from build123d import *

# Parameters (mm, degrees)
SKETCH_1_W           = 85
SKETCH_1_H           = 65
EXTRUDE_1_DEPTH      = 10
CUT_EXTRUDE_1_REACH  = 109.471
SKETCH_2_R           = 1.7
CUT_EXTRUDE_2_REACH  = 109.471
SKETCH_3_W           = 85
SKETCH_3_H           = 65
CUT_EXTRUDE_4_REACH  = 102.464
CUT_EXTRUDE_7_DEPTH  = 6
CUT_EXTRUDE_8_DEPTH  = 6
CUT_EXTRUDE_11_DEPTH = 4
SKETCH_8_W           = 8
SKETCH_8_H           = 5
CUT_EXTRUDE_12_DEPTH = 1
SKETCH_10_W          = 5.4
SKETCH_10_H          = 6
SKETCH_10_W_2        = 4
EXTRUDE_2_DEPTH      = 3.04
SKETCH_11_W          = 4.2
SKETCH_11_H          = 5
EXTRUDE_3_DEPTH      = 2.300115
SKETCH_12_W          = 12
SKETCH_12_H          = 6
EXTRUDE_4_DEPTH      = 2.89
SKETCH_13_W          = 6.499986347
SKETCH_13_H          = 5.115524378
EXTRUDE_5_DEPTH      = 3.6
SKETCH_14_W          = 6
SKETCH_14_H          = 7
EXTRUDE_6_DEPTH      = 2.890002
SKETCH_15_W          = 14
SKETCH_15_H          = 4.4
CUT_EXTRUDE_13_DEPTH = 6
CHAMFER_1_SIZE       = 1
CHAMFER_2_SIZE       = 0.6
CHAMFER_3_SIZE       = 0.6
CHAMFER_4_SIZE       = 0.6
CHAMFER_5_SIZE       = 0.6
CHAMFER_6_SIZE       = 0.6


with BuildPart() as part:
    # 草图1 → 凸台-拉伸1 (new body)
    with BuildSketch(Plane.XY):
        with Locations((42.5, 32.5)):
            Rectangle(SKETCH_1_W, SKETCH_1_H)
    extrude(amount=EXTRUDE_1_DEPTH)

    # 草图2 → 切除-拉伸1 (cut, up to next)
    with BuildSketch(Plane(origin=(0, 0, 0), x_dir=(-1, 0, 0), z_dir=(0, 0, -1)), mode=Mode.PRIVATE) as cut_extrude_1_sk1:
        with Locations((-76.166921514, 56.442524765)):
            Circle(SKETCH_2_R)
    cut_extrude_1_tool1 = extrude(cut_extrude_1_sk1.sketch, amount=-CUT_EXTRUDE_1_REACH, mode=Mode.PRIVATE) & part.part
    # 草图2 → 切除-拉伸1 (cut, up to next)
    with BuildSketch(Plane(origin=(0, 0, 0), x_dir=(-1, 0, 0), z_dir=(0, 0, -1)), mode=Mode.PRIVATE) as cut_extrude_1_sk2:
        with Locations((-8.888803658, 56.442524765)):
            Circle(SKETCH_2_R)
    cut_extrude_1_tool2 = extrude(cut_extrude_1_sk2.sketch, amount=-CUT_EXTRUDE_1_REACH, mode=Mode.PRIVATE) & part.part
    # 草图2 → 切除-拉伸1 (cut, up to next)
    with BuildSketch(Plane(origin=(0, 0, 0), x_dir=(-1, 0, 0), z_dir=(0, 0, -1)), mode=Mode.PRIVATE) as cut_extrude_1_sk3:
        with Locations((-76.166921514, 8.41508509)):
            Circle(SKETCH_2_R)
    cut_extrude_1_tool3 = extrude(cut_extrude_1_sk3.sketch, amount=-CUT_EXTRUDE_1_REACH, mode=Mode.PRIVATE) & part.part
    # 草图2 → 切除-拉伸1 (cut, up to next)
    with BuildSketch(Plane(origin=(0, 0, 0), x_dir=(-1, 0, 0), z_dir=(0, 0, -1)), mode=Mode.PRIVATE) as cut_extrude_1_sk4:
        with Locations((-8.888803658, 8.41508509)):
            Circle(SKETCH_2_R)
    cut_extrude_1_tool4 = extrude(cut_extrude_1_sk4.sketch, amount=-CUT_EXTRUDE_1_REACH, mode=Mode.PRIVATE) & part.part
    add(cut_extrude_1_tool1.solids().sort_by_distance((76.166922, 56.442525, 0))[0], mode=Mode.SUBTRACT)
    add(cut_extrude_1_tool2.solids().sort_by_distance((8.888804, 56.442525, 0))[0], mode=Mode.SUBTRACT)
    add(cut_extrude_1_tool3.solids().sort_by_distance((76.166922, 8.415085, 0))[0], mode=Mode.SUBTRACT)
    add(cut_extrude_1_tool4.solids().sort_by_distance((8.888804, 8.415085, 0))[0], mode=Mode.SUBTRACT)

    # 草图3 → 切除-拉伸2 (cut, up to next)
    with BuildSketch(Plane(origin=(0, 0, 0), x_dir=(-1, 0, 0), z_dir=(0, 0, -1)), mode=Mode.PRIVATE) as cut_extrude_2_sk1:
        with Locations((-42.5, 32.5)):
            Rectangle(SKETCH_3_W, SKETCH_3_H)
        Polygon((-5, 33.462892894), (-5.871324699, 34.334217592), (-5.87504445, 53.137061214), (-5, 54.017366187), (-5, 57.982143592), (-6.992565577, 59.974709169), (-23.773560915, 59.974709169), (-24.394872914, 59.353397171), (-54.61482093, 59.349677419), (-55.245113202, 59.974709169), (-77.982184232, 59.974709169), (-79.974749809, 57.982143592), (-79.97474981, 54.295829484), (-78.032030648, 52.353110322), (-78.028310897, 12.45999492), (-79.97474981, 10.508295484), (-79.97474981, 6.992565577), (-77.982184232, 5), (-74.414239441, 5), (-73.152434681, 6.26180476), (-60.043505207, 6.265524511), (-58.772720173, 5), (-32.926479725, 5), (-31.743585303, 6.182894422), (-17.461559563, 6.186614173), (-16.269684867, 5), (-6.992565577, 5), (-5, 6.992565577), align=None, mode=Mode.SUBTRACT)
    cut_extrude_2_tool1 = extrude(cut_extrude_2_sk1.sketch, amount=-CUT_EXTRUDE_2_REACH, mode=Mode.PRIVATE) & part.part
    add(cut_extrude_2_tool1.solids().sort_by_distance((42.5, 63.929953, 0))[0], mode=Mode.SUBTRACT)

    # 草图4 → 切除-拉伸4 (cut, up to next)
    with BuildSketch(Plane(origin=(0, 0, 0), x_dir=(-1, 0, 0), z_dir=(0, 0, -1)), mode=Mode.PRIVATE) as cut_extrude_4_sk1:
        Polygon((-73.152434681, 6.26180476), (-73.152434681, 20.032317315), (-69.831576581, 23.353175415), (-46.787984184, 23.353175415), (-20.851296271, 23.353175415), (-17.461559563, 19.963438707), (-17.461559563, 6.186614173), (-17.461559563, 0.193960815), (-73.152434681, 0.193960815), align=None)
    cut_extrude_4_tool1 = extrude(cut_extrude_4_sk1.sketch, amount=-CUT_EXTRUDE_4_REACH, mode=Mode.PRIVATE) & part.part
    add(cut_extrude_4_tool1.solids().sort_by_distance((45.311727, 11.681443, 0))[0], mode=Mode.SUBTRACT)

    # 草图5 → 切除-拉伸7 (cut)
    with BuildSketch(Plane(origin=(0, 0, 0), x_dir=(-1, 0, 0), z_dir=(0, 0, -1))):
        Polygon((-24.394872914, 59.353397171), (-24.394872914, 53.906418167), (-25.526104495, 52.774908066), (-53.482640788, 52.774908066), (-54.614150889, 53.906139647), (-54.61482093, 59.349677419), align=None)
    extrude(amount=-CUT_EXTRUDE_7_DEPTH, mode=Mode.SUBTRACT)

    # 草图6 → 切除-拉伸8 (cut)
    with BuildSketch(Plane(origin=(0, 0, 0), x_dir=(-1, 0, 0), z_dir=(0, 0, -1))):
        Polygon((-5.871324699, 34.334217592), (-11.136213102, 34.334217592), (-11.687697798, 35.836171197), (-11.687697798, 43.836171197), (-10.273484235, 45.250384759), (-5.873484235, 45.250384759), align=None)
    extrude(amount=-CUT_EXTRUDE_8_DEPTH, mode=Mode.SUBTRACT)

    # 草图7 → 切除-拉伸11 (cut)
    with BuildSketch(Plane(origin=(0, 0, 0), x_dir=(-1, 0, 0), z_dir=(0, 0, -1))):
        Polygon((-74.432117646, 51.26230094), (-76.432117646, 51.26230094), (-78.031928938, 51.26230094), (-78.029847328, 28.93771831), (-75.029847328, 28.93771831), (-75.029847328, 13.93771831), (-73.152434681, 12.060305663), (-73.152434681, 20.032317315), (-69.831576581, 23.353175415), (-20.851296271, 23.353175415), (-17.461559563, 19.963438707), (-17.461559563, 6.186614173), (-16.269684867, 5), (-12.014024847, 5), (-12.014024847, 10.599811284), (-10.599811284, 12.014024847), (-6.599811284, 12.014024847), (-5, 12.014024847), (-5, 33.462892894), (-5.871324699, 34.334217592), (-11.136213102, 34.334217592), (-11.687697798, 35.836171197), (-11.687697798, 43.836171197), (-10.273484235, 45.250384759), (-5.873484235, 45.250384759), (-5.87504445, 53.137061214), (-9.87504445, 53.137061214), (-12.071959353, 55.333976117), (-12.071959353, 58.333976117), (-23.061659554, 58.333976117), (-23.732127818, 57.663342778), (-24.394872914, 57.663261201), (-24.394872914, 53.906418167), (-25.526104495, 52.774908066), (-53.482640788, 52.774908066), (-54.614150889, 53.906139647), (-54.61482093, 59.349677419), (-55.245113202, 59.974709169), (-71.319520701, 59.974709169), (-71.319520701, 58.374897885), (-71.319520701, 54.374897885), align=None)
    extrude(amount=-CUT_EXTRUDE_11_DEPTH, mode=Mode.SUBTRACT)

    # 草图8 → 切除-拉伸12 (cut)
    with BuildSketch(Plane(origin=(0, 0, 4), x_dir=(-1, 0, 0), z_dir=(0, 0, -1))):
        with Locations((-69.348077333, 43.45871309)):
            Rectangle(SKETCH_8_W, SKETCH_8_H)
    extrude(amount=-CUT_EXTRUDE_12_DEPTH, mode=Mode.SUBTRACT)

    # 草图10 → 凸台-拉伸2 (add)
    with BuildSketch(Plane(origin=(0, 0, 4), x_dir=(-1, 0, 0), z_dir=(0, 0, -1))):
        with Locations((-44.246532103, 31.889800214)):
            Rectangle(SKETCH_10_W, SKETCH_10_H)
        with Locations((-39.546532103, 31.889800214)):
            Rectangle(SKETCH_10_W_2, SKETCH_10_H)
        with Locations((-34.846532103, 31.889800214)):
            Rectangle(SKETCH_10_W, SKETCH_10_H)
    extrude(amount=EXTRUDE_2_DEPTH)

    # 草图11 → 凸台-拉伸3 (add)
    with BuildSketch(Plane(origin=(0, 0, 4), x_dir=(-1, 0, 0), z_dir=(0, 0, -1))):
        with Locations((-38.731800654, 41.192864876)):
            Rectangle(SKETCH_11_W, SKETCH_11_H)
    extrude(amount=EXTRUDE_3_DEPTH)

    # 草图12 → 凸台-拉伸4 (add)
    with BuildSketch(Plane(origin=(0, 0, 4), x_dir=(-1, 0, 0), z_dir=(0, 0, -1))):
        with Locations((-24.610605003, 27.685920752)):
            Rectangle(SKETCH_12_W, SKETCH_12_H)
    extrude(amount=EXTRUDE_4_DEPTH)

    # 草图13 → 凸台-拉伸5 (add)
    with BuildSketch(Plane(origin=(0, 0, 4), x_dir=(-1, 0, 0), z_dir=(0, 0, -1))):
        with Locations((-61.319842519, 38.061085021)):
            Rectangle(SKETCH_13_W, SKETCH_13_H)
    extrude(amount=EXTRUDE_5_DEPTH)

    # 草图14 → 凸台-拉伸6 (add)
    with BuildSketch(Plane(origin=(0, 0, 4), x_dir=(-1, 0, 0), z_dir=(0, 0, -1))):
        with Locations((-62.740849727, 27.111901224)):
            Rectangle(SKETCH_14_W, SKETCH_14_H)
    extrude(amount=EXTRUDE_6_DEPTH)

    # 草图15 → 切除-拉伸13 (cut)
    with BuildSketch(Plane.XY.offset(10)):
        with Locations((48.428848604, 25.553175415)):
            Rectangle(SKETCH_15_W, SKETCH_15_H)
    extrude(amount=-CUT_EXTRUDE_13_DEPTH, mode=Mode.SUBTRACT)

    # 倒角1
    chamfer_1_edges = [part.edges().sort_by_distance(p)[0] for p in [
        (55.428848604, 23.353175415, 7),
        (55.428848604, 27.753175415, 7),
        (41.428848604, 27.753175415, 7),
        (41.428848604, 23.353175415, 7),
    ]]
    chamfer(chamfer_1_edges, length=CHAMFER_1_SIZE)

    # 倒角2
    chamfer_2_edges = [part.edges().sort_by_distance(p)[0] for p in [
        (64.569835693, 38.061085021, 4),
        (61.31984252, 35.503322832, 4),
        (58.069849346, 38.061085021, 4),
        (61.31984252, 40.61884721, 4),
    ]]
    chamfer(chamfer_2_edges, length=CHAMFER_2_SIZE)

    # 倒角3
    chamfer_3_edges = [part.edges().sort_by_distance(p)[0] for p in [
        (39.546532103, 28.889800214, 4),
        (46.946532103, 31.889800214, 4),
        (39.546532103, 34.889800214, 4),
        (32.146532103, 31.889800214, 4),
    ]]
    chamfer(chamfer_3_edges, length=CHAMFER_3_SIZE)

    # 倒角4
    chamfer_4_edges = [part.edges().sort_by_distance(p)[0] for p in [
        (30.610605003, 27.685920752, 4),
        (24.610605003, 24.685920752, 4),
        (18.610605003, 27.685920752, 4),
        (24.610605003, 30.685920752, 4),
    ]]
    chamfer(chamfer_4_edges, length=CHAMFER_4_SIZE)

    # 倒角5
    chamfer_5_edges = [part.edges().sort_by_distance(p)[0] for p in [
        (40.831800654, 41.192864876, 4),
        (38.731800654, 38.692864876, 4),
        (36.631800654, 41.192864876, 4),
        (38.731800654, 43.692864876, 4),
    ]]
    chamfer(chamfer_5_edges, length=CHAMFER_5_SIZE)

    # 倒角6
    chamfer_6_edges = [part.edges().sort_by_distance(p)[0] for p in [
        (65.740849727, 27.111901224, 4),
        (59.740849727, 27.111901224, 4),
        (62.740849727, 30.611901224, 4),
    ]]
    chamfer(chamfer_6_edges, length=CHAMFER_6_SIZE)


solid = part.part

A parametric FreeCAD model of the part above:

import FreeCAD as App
import Part
import Sketcher
Q = App.Units.Quantity


def edges_at(feature, points):
    """Names of the edges that pass closest to the given points."""
    edges = feature.Shape.Edges
    near = lambda p: min(range(len(edges)), key=lambda i: edges[i].distToShape(Part.Vertex(*p))[0])
    return sorted({f"Edge{near(p) + 1}" for p in points})


def add_polygon(sketch, points):
    """Adds a closed chain of lines whose ends are joined by coincident constraints."""
    first, n = sketch.GeometryCount, len(points)
    for a, b in zip(points, points[1:] + points[:1]):
        sketch.addGeometry(Part.LineSegment(App.Vector(*a, 0), App.Vector(*b, 0)), False)
    for i in range(n):
        sketch.addConstraint(Sketcher.Constraint("Coincident", first + i, 2, first + (i + 1) % n, 1))

doc = App.newDocument("Part")
body = doc.addObject("PartDesign::Body", "Body")

# Sketch on XY plane
sketch1 = body.newObject("Sketcher::SketchObject", "Sketch")
sketch1.AttachmentSupport = (doc.getObject("XY_Plane"), [""])
sketch1.MapMode = "FlatFace"
add_polygon(sketch1, [(0, 65), (0, 0), (85, 0), (85, 65)])  # lines 0-3
sketch1.addConstraint(Sketcher.Constraint("Vertical", 0))
sketch1.addConstraint(Sketcher.Constraint("Horizontal", 1))
sketch1.addConstraint(Sketcher.Constraint("Vertical", 2))
sketch1.addConstraint(Sketcher.Constraint("Horizontal", 3))
sketch1.addConstraint(Sketcher.Constraint("Coincident", 0, 2, -1, 1))
sketch1.addConstraint(Sketcher.Constraint("DistanceX", 1, 1, 1, 2, Q("85 mm")))
sketch1.addConstraint(Sketcher.Constraint("DistanceY", 0, 2, 0, 1, Q("65 mm")))
pad1 = body.newObject("PartDesign::Pad", "Pad")
pad1.Profile = sketch1
pad1.Length = 10

# Sketch on XY plane
sketch2 = body.newObject("Sketcher::SketchObject", "Sketch001")
sketch2.AttachmentSupport = (doc.getObject("XY_Plane"), [""])
sketch2.MapMode = "FlatFace"
sketch2.addGeometry(Part.Circle(App.Vector(76.166922, 56.442525, 0), App.Vector(0, 0, 1), 1.7), False)
sketch2.addConstraint(Sketcher.Constraint("Diameter", 0, Q("3.4 mm")))
sketch2.addConstraint(Sketcher.Constraint("DistanceX", -1, 1, 0, 3, Q("76.166922 mm")))
sketch2.addConstraint(Sketcher.Constraint("DistanceY", -1, 1, 0, 3, Q("56.442525 mm")))
pocket1 = body.newObject("PartDesign::Pocket", "Pocket")
pocket1.Profile = sketch2
pocket1.Type = "UpToFirst"
pocket1.Reversed = True

# Sketch on XY plane
sketch3 = body.newObject("Sketcher::SketchObject", "Sketch002")
sketch3.AttachmentSupport = (doc.getObject("XY_Plane"), [""])
sketch3.MapMode = "FlatFace"
sketch3.addGeometry(Part.Circle(App.Vector(8.888804, 56.442525, 0), App.Vector(0, 0, 1), 1.7), False)
sketch3.addConstraint(Sketcher.Constraint("Diameter", 0, Q("3.4 mm")))
sketch3.addConstraint(Sketcher.Constraint("DistanceX", -1, 1, 0, 3, Q("8.888804 mm")))
sketch3.addConstraint(Sketcher.Constraint("DistanceY", -1, 1, 0, 3, Q("56.442525 mm")))
pocket2 = body.newObject("PartDesign::Pocket", "Pocket001")
pocket2.Profile = sketch3
pocket2.Type = "UpToFirst"
pocket2.Reversed = True

# Sketch on XY plane
sketch4 = body.newObject("Sketcher::SketchObject", "Sketch003")
sketch4.AttachmentSupport = (doc.getObject("XY_Plane"), [""])
sketch4.MapMode = "FlatFace"
sketch4.addGeometry(Part.Circle(App.Vector(76.166922, 8.415085, 0), App.Vector(0, 0, 1), 1.7), False)
sketch4.addConstraint(Sketcher.Constraint("Diameter", 0, Q("3.4 mm")))
sketch4.addConstraint(Sketcher.Constraint("DistanceX", -1, 1, 0, 3, Q("76.166922 mm")))
sketch4.addConstraint(Sketcher.Constraint("DistanceY", -1, 1, 0, 3, Q("8.415085 mm")))
pocket3 = body.newObject("PartDesign::Pocket", "Pocket002")
pocket3.Profile = sketch4
pocket3.Type = "UpToFirst"
pocket3.Reversed = True

# Sketch on XY plane
sketch5 = body.newObject("Sketcher::SketchObject", "Sketch004")
sketch5.AttachmentSupport = (doc.getObject("XY_Plane"), [""])
sketch5.MapMode = "FlatFace"
sketch5.addGeometry(Part.Circle(App.Vector(8.888804, 8.415085, 0), App.Vector(0, 0, 1), 1.7), False)
sketch5.addConstraint(Sketcher.Constraint("Diameter", 0, Q("3.4 mm")))
sketch5.addConstraint(Sketcher.Constraint("DistanceX", -1, 1, 0, 3, Q("8.888804 mm")))
sketch5.addConstraint(Sketcher.Constraint("DistanceY", -1, 1, 0, 3, Q("8.415085 mm")))
pocket4 = body.newObject("PartDesign::Pocket", "Pocket003")
pocket4.Profile = sketch5
pocket4.Type = "UpToFirst"
pocket4.Reversed = True

# Sketch on XY plane
sketch6 = body.newObject("Sketcher::SketchObject", "Sketch005")
sketch6.AttachmentSupport = (doc.getObject("XY_Plane"), [""])
sketch6.MapMode = "FlatFace"
add_polygon(sketch6, [(85, 65), (85, 0), (0, 0), (0, 65)])  # lines 0-3
add_polygon(sketch6, [(5.871325, 34.334218), (5, 33.462893), (5, 6.992566), (6.992566, 5), (16.269685, 5), (17.46156, 6.186614), (31.743585, 6.182894), (32.92648, 5), (58.77272, 5), (60.043505, 6.265525), (73.152435, 6.261805), (74.414239, 5), (77.982184, 5), (79.97475, 6.992566), (79.97475, 10.508295), (78.028311, 12.459995), (78.032031, 52.35311), (79.97475, 54.295829), (79.97475, 57.982144), (77.982184, 59.974709), (55.245113, 59.974709), (54.614821, 59.349677), (24.394873, 59.353397), (23.773561, 59.974709), (6.992566, 59.974709), (5, 57.982144), (5, 54.017366), (5.875044, 53.137061)])  # lines 4-31
sketch6.addConstraint(Sketcher.Constraint("Vertical", 0))
sketch6.addConstraint(Sketcher.Constraint("Horizontal", 1))
sketch6.addConstraint(Sketcher.Constraint("Vertical", 2))
sketch6.addConstraint(Sketcher.Constraint("Horizontal", 3))
sketch6.addConstraint(Sketcher.Constraint("Vertical", 5))
sketch6.addConstraint(Sketcher.Constraint("Horizontal", 7))
sketch6.addConstraint(Sketcher.Constraint("Horizontal", 11))
sketch6.addConstraint(Sketcher.Constraint("Horizontal", 15))
sketch6.addConstraint(Sketcher.Constraint("Vertical", 17))
sketch6.addConstraint(Sketcher.Constraint("Vertical", 21))
sketch6.addConstraint(Sketcher.Constraint("Horizontal", 23))
sketch6.addConstraint(Sketcher.Constraint("Horizontal", 27))
sketch6.addConstraint(Sketcher.Constraint("Vertical", 29))
sketch6.addConstraint(Sketcher.Constraint("Coincident", 1, 2, -1, 1))
sketch6.addConstraint(Sketcher.Constraint("Perpendicular", 4, 6))
sketch6.addConstraint(Sketcher.Constraint("Parallel", 6, 10))
sketch6.addConstraint(Sketcher.Constraint("Parallel", 10, 14))
sketch6.addConstraint(Sketcher.Constraint("Perpendicular", 14, 16))
sketch6.addConstraint(Sketcher.Constraint("Parallel", 16, 20))
sketch6.addConstraint(Sketcher.Constraint("Perpendicular", 20, 22))
sketch6.addConstraint(Sketcher.Constraint("Parallel", 22, 26))
sketch6.addConstraint(Sketcher.Constraint("Perpendicular", 26, 28))
sketch6.addConstraint(Sketcher.Constraint("Horizontal", 7, 2, 10, 2))
sketch6.addConstraint(Sketcher.Constraint("Horizontal", 11, 2, 14, 2))
sketch6.addConstraint(Sketcher.Constraint("Horizontal", 5, 2, 16, 2))
sketch6.addConstraint(Sketcher.Constraint("Horizontal", 23, 2, 26, 2))
sketch6.addConstraint(Sketcher.Constraint("Horizontal", 21, 2, 28, 2))
sketch6.addConstraint(Sketcher.Constraint("Vertical", 17, 2, 20, 2))
sketch6.addConstraint(Sketcher.Constraint("Vertical", 15, 2, 22, 2))
sketch6.addConstraint(Sketcher.Constraint("Vertical", 6, 2, 27, 2))
sketch6.addConstraint(Sketcher.Constraint("Vertical", 5, 2, 28, 2))
sketch6.addConstraint(Sketcher.Constraint("DistanceX", 1, 2, 1, 1, Q("85 mm")))
sketch6.addConstraint(Sketcher.Constraint("DistanceY", 0, 2, 0, 1, Q("65 mm")))
sketch6.addConstraint(Sketcher.Constraint("DistanceX", -1, 1, 4, 2, Q("5 mm")))
sketch6.addConstraint(Sketcher.Constraint("DistanceY", -1, 1, 6, 2, Q("5 mm")))
sketch6.addConstraint(Sketcher.Constraint("DistanceX", 7, 1, 7, 2, Q("9.277119 mm")))
sketch6.addConstraint(Sketcher.Constraint("DistanceX", 11, 1, 11, 2, Q("25.84624 mm")))
sketch6.addConstraint(Sketcher.Constraint("DistanceX", 23, 2, 23, 1, Q("22.737071 mm")))
sketch6.addConstraint(Sketcher.Constraint("DistanceY", 17, 1, 17, 2, Q("3.51573 mm")))
sketch6.addConstraint(Sketcher.Constraint("DistanceX", 7, 2, 9, 2, Q("15.4739 mm")))
sketch6.addConstraint(Sketcher.Constraint("DistanceY", 17, 2, 18, 2, Q("1.951699 mm")))
sketch6.addConstraint(Sketcher.Constraint("DistanceY", 19, 2, 22, 2, Q("7.621599 mm")))
sketch6.addConstraint(Sketcher.Constraint("Distance", 4, Q("1.232239 mm")))
sketch6.addConstraint(Sketcher.Constraint("Distance", 8, Q("1.68185 mm")))
sketch6.addConstraint(Sketcher.Constraint("Distance", 13, Q("13.10893 mm")))
sketch6.addConstraint(Sketcher.Constraint("Distance", 14, Q("1.784461 mm")))
sketch6.addConstraint(Sketcher.Constraint("Distance", 20, Q("2.74742 mm")))
sketch6.addConstraint(Sketcher.Constraint("Distance", 25, Q("30.219948 mm")))
sketch6.addConstraint(Sketcher.Constraint("DistanceX", 15, 1, 15, 2, Q("3.567945 mm")))
sketch6.addConstraint(Sketcher.Constraint("DistanceX", 27, 2, 27, 1, Q("16.780995 mm")))
sketch6.addConstraint(Sketcher.Constraint("DistanceY", 5, 2, 5, 1, Q("26.470327 mm")))
sketch6.addConstraint(Sketcher.Constraint("DistanceY", 21, 1, 21, 2, Q("3.686314 mm")))
sketch6.addConstraint(Sketcher.Constraint("DistanceY", 29, 2, 29, 1, Q("3.964777 mm")))
sketch6.addConstraint(Sketcher.Constraint("DistanceX", -1, 1, 8, 2, Q("17.46156 mm")))
sketch6.addConstraint(Sketcher.Constraint("DistanceX", -1, 1, 10, 2, Q("32.92648 mm")))
sketch6.addConstraint(Sketcher.Constraint("DistanceX", -1, 1, 14, 2, Q("74.414239 mm")))
sketch6.addConstraint(Sketcher.Constraint("DistanceX", -1, 1, 18, 2, Q("78.028311 mm")))
sketch6.addConstraint(Sketcher.Constraint("DistanceY", -1, 1, 19, 2, Q("52.35311 mm")))
sketch6.addConstraint(Sketcher.Constraint("DistanceX", -1, 1, 24, 2, Q("54.614821 mm")))
sketch6.addConstraint(Sketcher.Constraint("DistanceY", -1, 1, 30, 2, Q("53.137061 mm")))
sketch6.addConstraint(Sketcher.Constraint("DistanceY", 9, 2, 12, 2, Q("0.08263 mm")))
sketch6.addConstraint(Sketcher.Constraint("DistanceY", 24, 2, 23, 2, Q("0.625032 mm")))
sketch6.addConstraint(Sketcher.Constraint("DistanceX", 30, 2, 27, 2, Q("1.117521 mm")))
pocket5 = body.newObject("PartDesign::Pocket", "Pocket004")
pocket5.Profile = sketch6
pocket5.Type = "UpToFirst"
pocket5.Reversed = True

# Sketch on XY plane
sketch7 = body.newObject("Sketcher::SketchObject", "Sketch006")
sketch7.AttachmentSupport = (doc.getObject("XY_Plane"), [""])
sketch7.MapMode = "FlatFace"
add_polygon(sketch7, [(73.152435, 20.032317), (73.152435, 0.193961), (17.46156, 0.193961), (17.46156, 19.963439), (20.851296, 23.353175), (69.831577, 23.353175)])  # lines 0-5
sketch7.addConstraint(Sketcher.Constraint("Vertical", 0))
sketch7.addConstraint(Sketcher.Constraint("Horizontal", 1))
sketch7.addConstraint(Sketcher.Constraint("Vertical", 2))
sketch7.addConstraint(Sketcher.Constraint("Horizontal", 4))
sketch7.addConstraint(Sketcher.Constraint("Perpendicular", 3, 5))
sketch7.addConstraint(Sketcher.Constraint("Angle", 3, Q("45 deg")))
sketch7.addConstraint(Sketcher.Constraint("DistanceX", 4, 1, 4, 2, Q("48.98028 mm")))
sketch7.addConstraint(Sketcher.Constraint("Distance", 3, Q("4.793812 mm")))
sketch7.addConstraint(Sketcher.Constraint("DistanceX", 1, 2, 1, 1, Q("55.690875 mm")))
sketch7.addConstraint(Sketcher.Constraint("DistanceY", 0, 2, 0, 1, Q("19.838356 mm")))
sketch7.addConstraint(Sketcher.Constraint("DistanceY", -1, 1, 0, 2, Q("0.193961 mm")))
sketch7.addConstraint(Sketcher.Constraint("DistanceX", -1, 1, 1, 2, Q("17.46156 mm")))
pocket6 = body.newObject("PartDesign::Pocket", "Pocket005")
pocket6.Profile = sketch7
pocket6.Type = "UpToFirst"
pocket6.Reversed = True

# Sketch on XY plane
sketch8 = body.newObject("Sketcher::SketchObject", "Sketch007")
sketch8.AttachmentSupport = (doc.getObject("XY_Plane"), [""])
sketch8.MapMode = "FlatFace"
add_polygon(sketch8, [(24.394873, 53.906418), (24.394873, 59.353397), (54.614821, 59.349677), (54.614151, 53.90614), (53.482641, 52.774908), (25.526104, 52.774908)])  # lines 0-5
sketch8.addConstraint(Sketcher.Constraint("Vertical", 0))
sketch8.addConstraint(Sketcher.Constraint("Horizontal", 4))
sketch8.addConstraint(Sketcher.Constraint("Perpendicular", 1, 2))
sketch8.addConstraint(Sketcher.Constraint("Perpendicular", 3, 5))
sketch8.addConstraint(Sketcher.Constraint("Equal", 3, 5))
sketch8.addConstraint(Sketcher.Constraint("Distance", 3, Q("1.6 mm")))
sketch8.addConstraint(Sketcher.Constraint("DistanceY", 0, 1, 0, 2, Q("5.446979 mm")))
sketch8.addConstraint(Sketcher.Constraint("Distance", 1, Q("30.219948 mm")))
sketch8.addConstraint(Sketcher.Constraint("DistanceX", 4, 2, 4, 1, Q("27.956536 mm")))
sketch8.addConstraint(Sketcher.Constraint("DistanceX", -1, 1, 1, 2, Q("54.614821 mm")))
sketch8.addConstraint(Sketcher.Constraint("DistanceY", -1, 1, 2, 2, Q("53.90614 mm")))
sketch8.addConstraint(Sketcher.Constraint("DistanceX", -1, 1, 3, 2, Q("53.482641 mm")))
pocket7 = body.newObject("PartDesign::Pocket", "Pocket006")
pocket7.Profile = sketch8
pocket7.Length = 6
pocket7.Reversed = True

# Sketch on XY plane
sketch9 = body.newObject("Sketcher::SketchObject", "Sketch008")
sketch9.AttachmentSupport = (doc.getObject("XY_Plane"), [""])
sketch9.MapMode = "FlatFace"
add_polygon(sketch9, [(11.136213, 34.334218), (5.871325, 34.334218), (5.873484, 45.250385), (10.273484, 45.250385), (11.687698, 43.836171), (11.687698, 35.836171)])  # lines 0-5
sketch9.addConstraint(Sketcher.Constraint("Horizontal", 0))
sketch9.addConstraint(Sketcher.Constraint("Horizontal", 2))
sketch9.addConstraint(Sketcher.Constraint("Vertical", 4))
sketch9.addConstraint(Sketcher.Constraint("DistanceY", 4, 2, 4, 1, Q("8 mm")))
sketch9.addConstraint(Sketcher.Constraint("Angle", 3, Q("-45 deg")))
sketch9.addConstraint(Sketcher.Constraint("Distance", 3, Q("2 mm")))
sketch9.addConstraint(Sketcher.Constraint("DistanceX", 2, 1, 2, 2, Q("4.4 mm")))
sketch9.addConstraint(Sketcher.Constraint("Distance", 5, Q("1.6 mm")))
sketch9.addConstraint(Sketcher.Constraint("DistanceX", 0, 2, 0, 1, Q("5.264888 mm")))
sketch9.addConstraint(Sketcher.Constraint("DistanceY", -1, 1, 3, 2, Q("43.836171 mm")))
sketch9.addConstraint(Sketcher.Constraint("DistanceX", 0, 2, 1, 2, Q("0.00216 mm")))
sketch9.addConstraint(Sketcher.Constraint("DistanceX", -1, 1, 0, 2, Q("5.871325 mm")))
pocket8 = body.newObject("PartDesign::Pocket", "Pocket007")
pocket8.Profile = sketch9
pocket8.Length = 6
pocket8.Reversed = True

# Sketch on XY plane
sketch10 = body.newObject("Sketcher::SketchObject", "Sketch009")
sketch10.AttachmentSupport = (doc.getObject("XY_Plane"), [""])
sketch10.MapMode = "FlatFace"
add_polygon(sketch10, [(74.432118, 51.262301), (78.031929, 51.262301), (78.029847, 28.937718), (75.029847, 28.937718), (75.029847, 13.937718), (73.152435, 12.060306), (73.152435, 20.032317), (69.831577, 23.353175), (20.851296, 23.353175), (17.46156, 19.963439), (17.46156, 6.186614), (16.269685, 5), (12.014025, 5), (12.014025, 10.599811), (10.599811, 12.014025), (5, 12.014025), (5, 33.462893), (5.871325, 34.334218), (11.136213, 34.334218), (11.687698, 35.836171), (11.687698, 43.836171), (10.273484, 45.250385), (5.873484, 45.250385), (5.875044, 53.137061), (9.875044, 53.137061), (12.071959, 55.333976), (12.071959, 58.333976), (23.06166, 58.333976), (23.732128, 57.663343), (24.394873, 57.663261), (24.394873, 53.906418), (25.526104, 52.774908), (53.482641, 52.774908), (54.614151, 53.90614), (54.614821, 59.349677), (55.245113, 59.974709), (71.319521, 59.974709), (71.319521, 54.374898)])  # lines 0-37
sketch10.addConstraint(Sketcher.Constraint("Horizontal", 0))
sketch10.addConstraint(Sketcher.Constraint("Horizontal", 2))
sketch10.addConstraint(Sketcher.Constraint("Vertical", 3))
sketch10.addConstraint(Sketcher.Constraint("Vertical", 5))
sketch10.addConstraint(Sketcher.Constraint("Horizontal", 7))
sketch10.addConstraint(Sketcher.Constraint("Vertical", 9))
sketch10.addConstraint(Sketcher.Constraint("Horizontal", 11))
sketch10.addConstraint(Sketcher.Constraint("Vertical", 12))
sketch10.addConstraint(Sketcher.Constraint("Horizontal", 14))
sketch10.addConstraint(Sketcher.Constraint("Vertical", 15))
sketch10.addConstraint(Sketcher.Constraint("Horizontal", 17))
sketch10.addConstraint(Sketcher.Constraint("Vertical", 19))
sketch10.addConstraint(Sketcher.Constraint("Horizontal", 21))
sketch10.addConstraint(Sketcher.Constraint("Horizontal", 23))
sketch10.addConstraint(Sketcher.Constraint("Vertical", 25))
sketch10.addConstraint(Sketcher.Constraint("Horizontal", 26))
sketch10.addConstraint(Sketcher.Constraint("Vertical", 29))
sketch10.addConstraint(Sketcher.Constraint("Horizontal", 31))
sketch10.addConstraint(Sketcher.Constraint("Horizontal", 35))
sketch10.addConstraint(Sketcher.Constraint("Vertical", 36))
sketch10.addConstraint(Sketcher.Constraint("Perpendicular", 4, 6))
sketch10.addConstraint(Sketcher.Constraint("Perpendicular", 6, 8))
sketch10.addConstraint(Sketcher.Constraint("Perpendicular", 8, 13))
sketch10.addConstraint(Sketcher.Constraint("Perpendicular", 13, 16))
sketch10.addConstraint(Sketcher.Constraint("Perpendicular", 16, 20))
sketch10.addConstraint(Sketcher.Constraint("Perpendicular", 20, 24))
sketch10.addConstraint(Sketcher.Constraint("Parallel", 27, 30))
sketch10.addConstraint(Sketcher.Constraint("Perpendicular", 30, 32))
sketch10.addConstraint(Sketcher.Constraint("Perpendicular", 28, 33))
sketch10.addConstraint(Sketcher.Constraint("Perpendicular", 24, 37))
sketch10.addConstraint(Sketcher.Constraint("Equal", 14, 12))
sketch10.addConstraint(Sketcher.Constraint("Equal", 2, 25))
sketch10.addConstraint(Sketcher.Constraint("Equal", 12, 36))
sketch10.addConstraint(Sketcher.Constraint("Equal", 13, 20))
sketch10.addConstraint(Sketcher.Constraint("Equal", 18, 30))
sketch10.addConstraint(Sketcher.Constraint("Equal", 30, 32))
sketch10.addConstraint(Sketcher.Constraint("DistanceX", 2, 2, 2, 1, Q("3 mm")))
sketch10.addConstraint(Sketcher.Constraint("DistanceX", 23, 1, 23, 2, Q("4 mm")))
sketch10.addConstraint(Sketcher.Constraint("DistanceY", 3, 2, 3, 1, Q("15 mm")))
sketch10.addConstraint(Sketcher.Constraint("DistanceY", 19, 1, 19, 2, Q("8 mm")))
sketch10.addConstraint(Sketcher.Constraint("Angle", 4, Q("-135 deg")))
sketch10.addConstraint(Sketcher.Constraint("Distance", 13, Q("2 mm")))
sketch10.addConstraint(Sketcher.Constraint("DistanceX", 21, 2, 21, 1, Q("4.4 mm")))
sketch10.addConstraint(Sketcher.Constraint("DistanceY", -1, 1, 10, 2, Q("5 mm")))
sketch10.addConstraint(Sketcher.Constraint("DistanceX", -1, 1, 14, 2, Q("5 mm")))
sketch10.addConstraint(Sketcher.Constraint("Distance", 18, Q("1.6 mm")))
sketch10.addConstraint(Sketcher.Constraint("DistanceX", 26, 1, 26, 2, Q("10.9897 mm")))
sketch10.addConstraint(Sketcher.Constraint("DistanceX", 0, 1, 0, 2, Q("3.599811 mm")))
sketch10.addConstraint(Sketcher.Constraint("DistanceX", 7, 2, 7, 1, Q("48.98028 mm")))
sketch10.addConstraint(Sketcher.Constraint("DistanceX", 11, 2, 11, 1, Q("4.25566 mm")))
sketch10.addConstraint(Sketcher.Constraint("DistanceX", 14, 2, 14, 1, Q("5.599811 mm")))
sketch10.addConstraint(Sketcher.Constraint("DistanceX", 17, 1, 17, 2, Q("5.264888 mm")))
sketch10.addConstraint(Sketcher.Constraint("DistanceY", 5, 1, 5, 2, Q("7.972012 mm")))
sketch10.addConstraint(Sketcher.Constraint("DistanceY", 15, 1, 15, 2, Q("21.448868 mm")))
sketch10.addConstraint(Sketcher.Constraint("DistanceY", -1, 1, 0, 2, Q("51.262301 mm")))
sketch10.addConstraint(Sketcher.Constraint("DistanceY", 3, 2, 5, 2, Q("6.094599 mm")))
sketch10.addConstraint(Sketcher.Constraint("DistanceX", 13, 2, 17, 2, Q("0.536402 mm")))
sketch10.addConstraint(Sketcher.Constraint("DistanceX", 18, 2, 7, 2, Q("9.163598 mm")))
sketch10.addConstraint(Sketcher.Constraint("DistanceY", 23, 2, 28, 2, Q("4.5262 mm")))
sketch10.addConstraint(Sketcher.Constraint("DistanceY", 31, 2, 34, 2, Q("7.199801 mm")))
sketch10.addConstraint(Sketcher.Constraint("DistanceX", 33, 2, 35, 2, Q("16.7047 mm")))
sketch10.addConstraint(Sketcher.Constraint("Distance", 8, Q("4.793812 mm")))
sketch10.addConstraint(Sketcher.Constraint("Distance", 10, Q("1.68185 mm")))
sketch10.addConstraint(Sketcher.Constraint("DistanceX", 31, 1, 31, 2, Q("27.956536 mm")))
sketch10.addConstraint(Sketcher.Constraint("DistanceX", 35, 1, 35, 2, Q("16.074407 mm")))
sketch10.addConstraint(Sketcher.Constraint("DistanceY", 9, 2, 9, 1, Q("13.776825 mm")))
sketch10.addConstraint(Sketcher.Constraint("DistanceY", 29, 2, 29, 1, Q("3.756843 mm")))
sketch10.addConstraint(Sketcher.Constraint("DistanceX", -1, 1, 0, 2, Q("78.031929 mm")))
sketch10.addConstraint(Sketcher.Constraint("DistanceY", -1, 1, 1, 2, Q("28.937718 mm")))
sketch10.addConstraint(Sketcher.Constraint("DistanceX", -1, 1, 8, 2, Q("17.46156 mm")))
sketch10.addConstraint(Sketcher.Constraint("DistanceY", -1, 1, 22, 2, Q("53.137061 mm")))
sketch10.addConstraint(Sketcher.Constraint("DistanceX", -1, 1, 24, 2, Q("12.071959 mm")))
sketch10.addConstraint(Sketcher.Constraint("DistanceY", -1, 1, 30, 2, Q("52.774908 mm")))
sketch10.addConstraint(Sketcher.Constraint("DistanceX", -1, 1, 31, 2, Q("53.482641 mm")))
sketch10.addConstraint(Sketcher.Constraint("DistanceX", 21, 2, 22, 2, Q("0.00156 mm")))
sketch10.addConstraint(Sketcher.Constraint("DistanceY", 31, 2, 33, 2, Q("6.574769 mm")))
pocket9 = body.newObject("PartDesign::Pocket", "Pocket008")
pocket9.Profile = sketch10
pocket9.Length = 4
pocket9.Reversed = True

# Sketch on XY plane
sketch11 = body.newObject("Sketcher::SketchObject", "Sketch010")
sketch11.AttachmentSupport = (doc.getObject("XY_Plane"), [""])
sketch11.MapMode = "FlatFace"
sketch11.AttachmentOffset = App.Placement(App.Vector(0, 0, 4), App.Rotation())
add_polygon(sketch11, [(73.348077, 45.958713), (73.348077, 40.958713), (65.348077, 40.958713), (65.348077, 45.958713)])  # lines 0-3
sketch11.addConstraint(Sketcher.Constraint("Vertical", 0))
sketch11.addConstraint(Sketcher.Constraint("Horizontal", 1))
sketch11.addConstraint(Sketcher.Constraint("Vertical", 2))
sketch11.addConstraint(Sketcher.Constraint("Horizontal", 3))
sketch11.addConstraint(Sketcher.Constraint("DistanceX", 1, 2, 1, 1, Q("8 mm")))
sketch11.addConstraint(Sketcher.Constraint("DistanceY", 0, 2, 0, 1, Q("5 mm")))
sketch11.addConstraint(Sketcher.Constraint("DistanceX", -1, 1, 0, 2, Q("73.348077 mm")))
sketch11.addConstraint(Sketcher.Constraint("DistanceY", -1, 1, 0, 2, Q("40.958713 mm")))
pocket10 = body.newObject("PartDesign::Pocket", "Pocket009")
pocket10.Profile = sketch11
pocket10.Length = 1
pocket10.Reversed = True

# Sketch on XY plane
sketch12 = body.newObject("Sketcher::SketchObject", "Sketch011")
sketch12.AttachmentSupport = (doc.getObject("XY_Plane"), [""])
sketch12.MapMode = "FlatFace"
sketch12.AttachmentOffset = App.Placement(App.Vector(0, 0, 4), App.Rotation())
add_polygon(sketch12, [(46.946532, 34.8898), (46.946532, 28.8898), (32.146532, 28.8898), (32.146532, 34.8898)])  # lines 0-3
sketch12.addConstraint(Sketcher.Constraint("Vertical", 0))
sketch12.addConstraint(Sketcher.Constraint("Horizontal", 1))
sketch12.addConstraint(Sketcher.Constraint("Vertical", 2))
sketch12.addConstraint(Sketcher.Constraint("Horizontal", 3))
sketch12.addConstraint(Sketcher.Constraint("DistanceY", 0, 2, 0, 1, Q("6 mm")))
sketch12.addConstraint(Sketcher.Constraint("DistanceX", 1, 2, 1, 1, Q("14.8 mm")))
sketch12.addConstraint(Sketcher.Constraint("DistanceY", -1, 1, 0, 2, Q("28.8898 mm")))
sketch12.addConstraint(Sketcher.Constraint("DistanceX", -1, 1, 0, 2, Q("46.946532 mm")))
pad2 = body.newObject("PartDesign::Pad", "Pad001")
pad2.Profile = sketch12
pad2.Length = 3.04
pad2.Reversed = True

# Sketch on XY plane
sketch13 = body.newObject("Sketcher::SketchObject", "Sketch012")
sketch13.AttachmentSupport = (doc.getObject("XY_Plane"), [""])
sketch13.MapMode = "FlatFace"
sketch13.AttachmentOffset = App.Placement(App.Vector(0, 0, 4), App.Rotation())
add_polygon(sketch13, [(40.831801, 43.692865), (40.831801, 38.692865), (36.631801, 38.692865), (36.631801, 43.692865)])  # lines 0-3
sketch13.addConstraint(Sketcher.Constraint("Vertical", 0))
sketch13.addConstraint(Sketcher.Constraint("Horizontal", 1))
sketch13.addConstraint(Sketcher.Constraint("Vertical", 2))
sketch13.addConstraint(Sketcher.Constraint("Horizontal", 3))
sketch13.addConstraint(Sketcher.Constraint("DistanceY", 0, 2, 0, 1, Q("5 mm")))
sketch13.addConstraint(Sketcher.Constraint("DistanceX", 1, 2, 1, 1, Q("4.2 mm")))
sketch13.addConstraint(Sketcher.Constraint("DistanceX", -1, 1, 0, 2, Q("40.831801 mm")))
sketch13.addConstraint(Sketcher.Constraint("DistanceY", -1, 1, 0, 2, Q("38.692865 mm")))
pad3 = body.newObject("PartDesign::Pad", "Pad002")
pad3.Profile = sketch13
pad3.Length = 2.300115
pad3.Reversed = True

# Sketch on XY plane
sketch14 = body.newObject("Sketcher::SketchObject", "Sketch013")
sketch14.AttachmentSupport = (doc.getObject("XY_Plane"), [""])
sketch14.MapMode = "FlatFace"
sketch14.AttachmentOffset = App.Placement(App.Vector(0, 0, 4), App.Rotation())
add_polygon(sketch14, [(30.610605, 30.685921), (30.610605, 24.685921), (18.610605, 24.685921), (18.610605, 30.685921)])  # lines 0-3
sketch14.addConstraint(Sketcher.Constraint("Vertical", 0))
sketch14.addConstraint(Sketcher.Constraint("Horizontal", 1))
sketch14.addConstraint(Sketcher.Constraint("Vertical", 2))
sketch14.addConstraint(Sketcher.Constraint("Horizontal", 3))
sketch14.addConstraint(Sketcher.Constraint("DistanceX", 1, 2, 1, 1, Q("12 mm")))
sketch14.addConstraint(Sketcher.Constraint("DistanceY", 0, 2, 0, 1, Q("6 mm")))
sketch14.addConstraint(Sketcher.Constraint("DistanceY", -1, 1, 0, 2, Q("24.685921 mm")))
sketch14.addConstraint(Sketcher.Constraint("DistanceX", -1, 1, 0, 2, Q("30.610605 mm")))
pad4 = body.newObject("PartDesign::Pad", "Pad003")
pad4.Profile = sketch14
pad4.Length = 2.89
pad4.Reversed = True

# Sketch on XY plane
sketch15 = body.newObject("Sketcher::SketchObject", "Sketch014")
sketch15.AttachmentSupport = (doc.getObject("XY_Plane"), [""])
sketch15.MapMode = "FlatFace"
sketch15.AttachmentOffset = App.Placement(App.Vector(0, 0, 4), App.Rotation())
add_polygon(sketch15, [(64.569836, 40.618847), (64.569836, 35.503323), (58.069849, 35.503323), (58.069849, 40.618847)])  # lines 0-3
sketch15.addConstraint(Sketcher.Constraint("Vertical", 0))
sketch15.addConstraint(Sketcher.Constraint("Horizontal", 1))
sketch15.addConstraint(Sketcher.Constraint("Vertical", 2))
sketch15.addConstraint(Sketcher.Constraint("Horizontal", 3))
sketch15.addConstraint(Sketcher.Constraint("DistanceX", 1, 2, 1, 1, Q("6.499986 mm")))
sketch15.addConstraint(Sketcher.Constraint("DistanceY", 0, 2, 0, 1, Q("5.115524 mm")))
sketch15.addConstraint(Sketcher.Constraint("DistanceX", -1, 1, 1, 2, Q("58.069849 mm")))
sketch15.addConstraint(Sketcher.Constraint("DistanceY", -1, 1, 0, 2, Q("35.503323 mm")))
pad5 = body.newObject("PartDesign::Pad", "Pad004")
pad5.Profile = sketch15
pad5.Length = 3.6
pad5.Reversed = True

# Sketch on XY plane
sketch16 = body.newObject("Sketcher::SketchObject", "Sketch015")
sketch16.AttachmentSupport = (doc.getObject("XY_Plane"), [""])
sketch16.MapMode = "FlatFace"
sketch16.AttachmentOffset = App.Placement(App.Vector(0, 0, 4), App.Rotation())
add_polygon(sketch16, [(65.74085, 30.611901), (65.74085, 23.611901), (59.74085, 23.611901), (59.74085, 30.611901)])  # lines 0-3
sketch16.addConstraint(Sketcher.Constraint("Vertical", 0))
sketch16.addConstraint(Sketcher.Constraint("Horizontal", 1))
sketch16.addConstraint(Sketcher.Constraint("Vertical", 2))
sketch16.addConstraint(Sketcher.Constraint("Horizontal", 3))
sketch16.addConstraint(Sketcher.Constraint("DistanceX", 1, 2, 1, 1, Q("6 mm")))
sketch16.addConstraint(Sketcher.Constraint("DistanceY", 0, 2, 0, 1, Q("7 mm")))
sketch16.addConstraint(Sketcher.Constraint("DistanceY", -1, 1, 0, 2, Q("23.611901 mm")))
sketch16.addConstraint(Sketcher.Constraint("DistanceX", -1, 1, 0, 2, Q("65.74085 mm")))
pad6 = body.newObject("PartDesign::Pad", "Pad005")
pad6.Profile = sketch16
pad6.Length = 2.890002
pad6.Reversed = True

# Sketch on XY plane
sketch17 = body.newObject("Sketcher::SketchObject", "Sketch016")
sketch17.AttachmentSupport = (doc.getObject("XY_Plane"), [""])
sketch17.MapMode = "FlatFace"
sketch17.AttachmentOffset = App.Placement(App.Vector(0, 0, 10), App.Rotation())
add_polygon(sketch17, [(41.428849, 27.753175), (41.428849, 23.353175), (55.428849, 23.353175), (55.428849, 27.753175)])  # lines 0-3
sketch17.addConstraint(Sketcher.Constraint("Vertical", 0))
sketch17.addConstraint(Sketcher.Constraint("Horizontal", 1))
sketch17.addConstraint(Sketcher.Constraint("Vertical", 2))
sketch17.addConstraint(Sketcher.Constraint("Horizontal", 3))
sketch17.addConstraint(Sketcher.Constraint("DistanceX", 1, 1, 1, 2, Q("14 mm")))
sketch17.addConstraint(Sketcher.Constraint("DistanceY", 0, 2, 0, 1, Q("4.4 mm")))
sketch17.addConstraint(Sketcher.Constraint("DistanceX", -1, 1, 0, 2, Q("41.428849 mm")))
sketch17.addConstraint(Sketcher.Constraint("DistanceY", -1, 1, 0, 2, Q("23.353175 mm")))
pocket11 = body.newObject("PartDesign::Pocket", "Pocket010")
pocket11.Profile = sketch17
pocket11.Length = 6
doc.recompute()

chamfer = body.newObject("PartDesign::Chamfer", "Chamfer")
chamfer.Base = (pocket11, edges_at(pocket11, [
    (55.429, 23.353, 7),
    (55.429, 27.753, 7),
    (41.429, 27.753, 7),
    (41.429, 23.353, 7),
]))
chamfer.Size = 1
doc.recompute()

chamfer2 = body.newObject("PartDesign::Chamfer", "Chamfer001")
chamfer2.Base = (chamfer, edges_at(chamfer, [
    (64.57, 38.061, 4),
    (61.32, 35.503, 4),
    (58.07, 38.061, 4),
    (61.32, 40.619, 4),
]))
chamfer2.Size = 0.6
doc.recompute()

chamfer3 = body.newObject("PartDesign::Chamfer", "Chamfer002")
chamfer3.Base = (chamfer2, edges_at(chamfer2, [
    (39.547, 28.89, 4),
    (46.947, 31.89, 4),
    (39.547, 34.89, 4),
    (32.147, 31.89, 4),
]))
chamfer3.Size = 0.6
doc.recompute()

chamfer4 = body.newObject("PartDesign::Chamfer", "Chamfer003")
chamfer4.Base = (chamfer3, edges_at(chamfer3, [
    (30.611, 27.686, 4),
    (24.611, 24.686, 4),
    (18.611, 27.686, 4),
    (24.611, 30.686, 4),
]))
chamfer4.Size = 0.6
doc.recompute()

chamfer5 = body.newObject("PartDesign::Chamfer", "Chamfer004")
chamfer5.Base = (chamfer4, edges_at(chamfer4, [
    (40.832, 41.193, 4),
    (38.732, 38.693, 4),
    (36.632, 41.193, 4),
    (38.732, 43.693, 4),
]))
chamfer5.Size = 0.6
doc.recompute()

chamfer6 = body.newObject("PartDesign::Chamfer", "Chamfer005")
chamfer6.Base = (chamfer5, edges_at(chamfer5, [(65.741, 27.112, 4), (59.741, 27.112, 4), (62.741, 30.612, 4)]))
chamfer6.Size = 0.6

doc.recompute()
